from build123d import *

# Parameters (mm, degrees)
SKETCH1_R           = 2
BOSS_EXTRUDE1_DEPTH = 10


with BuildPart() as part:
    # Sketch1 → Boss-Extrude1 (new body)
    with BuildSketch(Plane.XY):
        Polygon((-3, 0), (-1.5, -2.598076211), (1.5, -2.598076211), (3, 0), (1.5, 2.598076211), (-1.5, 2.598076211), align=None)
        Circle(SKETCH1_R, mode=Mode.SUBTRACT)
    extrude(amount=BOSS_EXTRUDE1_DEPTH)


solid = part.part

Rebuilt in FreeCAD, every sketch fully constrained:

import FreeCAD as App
import Part
import Sketcher

V = App.Vector
Q = App.Units.Quantity


def add_polygon(sketch, points):
    """Adds a closed chain of lines whose ends are joined by coincident constraints."""
    first, n = sketch.GeometryCount, len(points)
    for a, b in zip(points, points[1:] + points[:1]):
        sketch.addGeometry(Part.LineSegment(App.Vector(*a, 0), App.Vector(*b, 0)), False)
    for i in range(n):
        sketch.addConstraint(Sketcher.Constraint("Coincident", first + i, 2, first + (i + 1) % n, 1))

doc = App.newDocument("Part")
body = doc.addObject("PartDesign::Body", "Body")

# Sketch on XY plane
sketch1 = doc.addObject("Sketcher::SketchObject", "Sketch")
body.addObject(sketch1)
sketch1.AttachmentSupport = (doc.XY_Plane, [""])
sketch1.MapMode = "FlatFace"
add_polygon(sketch1, [(-3, 0), (-1.5, -2.6), (1.5, -2.6), (3, 0), (1.5, 2.6), (-1.5, 2.6)])  # lines 0-5
sketch1.addGeometry(Part.Circle(V(0, 0, 0), V(0, 0, 1), 2), False)  # 6
sketch1.addConstraint([
    Sketcher.Constraint("Horizontal", 1),
    Sketcher.Constraint("Horizontal", 4),
    Sketcher.Constraint("Coincident", 6, 3, -1, 1),
    Sketcher.Constraint("Symmetric", 0, 2, 3, 2, -1, 1),
    Sketcher.Constraint("Symmetric", 2, 2, 5, 2, -1, 1),
    Sketcher.Constraint("PointOnObject", 2, 2, -1),
    Sketcher.Constraint("Parallel", 2, 5),
    Sketcher.Constraint("Vertical", 1, 2, 3, 2),
    Sketcher.Constraint("Diameter", 6, 4.0),
    Sketcher.Constraint("DistanceX", 1, 1, 1, 2, 3.0),
    Sketcher.Constraint("Angle", 0, Q("-60 deg")),
    Sketcher.Constraint("Distance", 0, 3.0),
])
pad1 = doc.addObject("PartDesign::Pad", "Pad")
body.addObject(pad1)
pad1.Profile = sketch1
pad1.Length = 10

doc.recompute()
